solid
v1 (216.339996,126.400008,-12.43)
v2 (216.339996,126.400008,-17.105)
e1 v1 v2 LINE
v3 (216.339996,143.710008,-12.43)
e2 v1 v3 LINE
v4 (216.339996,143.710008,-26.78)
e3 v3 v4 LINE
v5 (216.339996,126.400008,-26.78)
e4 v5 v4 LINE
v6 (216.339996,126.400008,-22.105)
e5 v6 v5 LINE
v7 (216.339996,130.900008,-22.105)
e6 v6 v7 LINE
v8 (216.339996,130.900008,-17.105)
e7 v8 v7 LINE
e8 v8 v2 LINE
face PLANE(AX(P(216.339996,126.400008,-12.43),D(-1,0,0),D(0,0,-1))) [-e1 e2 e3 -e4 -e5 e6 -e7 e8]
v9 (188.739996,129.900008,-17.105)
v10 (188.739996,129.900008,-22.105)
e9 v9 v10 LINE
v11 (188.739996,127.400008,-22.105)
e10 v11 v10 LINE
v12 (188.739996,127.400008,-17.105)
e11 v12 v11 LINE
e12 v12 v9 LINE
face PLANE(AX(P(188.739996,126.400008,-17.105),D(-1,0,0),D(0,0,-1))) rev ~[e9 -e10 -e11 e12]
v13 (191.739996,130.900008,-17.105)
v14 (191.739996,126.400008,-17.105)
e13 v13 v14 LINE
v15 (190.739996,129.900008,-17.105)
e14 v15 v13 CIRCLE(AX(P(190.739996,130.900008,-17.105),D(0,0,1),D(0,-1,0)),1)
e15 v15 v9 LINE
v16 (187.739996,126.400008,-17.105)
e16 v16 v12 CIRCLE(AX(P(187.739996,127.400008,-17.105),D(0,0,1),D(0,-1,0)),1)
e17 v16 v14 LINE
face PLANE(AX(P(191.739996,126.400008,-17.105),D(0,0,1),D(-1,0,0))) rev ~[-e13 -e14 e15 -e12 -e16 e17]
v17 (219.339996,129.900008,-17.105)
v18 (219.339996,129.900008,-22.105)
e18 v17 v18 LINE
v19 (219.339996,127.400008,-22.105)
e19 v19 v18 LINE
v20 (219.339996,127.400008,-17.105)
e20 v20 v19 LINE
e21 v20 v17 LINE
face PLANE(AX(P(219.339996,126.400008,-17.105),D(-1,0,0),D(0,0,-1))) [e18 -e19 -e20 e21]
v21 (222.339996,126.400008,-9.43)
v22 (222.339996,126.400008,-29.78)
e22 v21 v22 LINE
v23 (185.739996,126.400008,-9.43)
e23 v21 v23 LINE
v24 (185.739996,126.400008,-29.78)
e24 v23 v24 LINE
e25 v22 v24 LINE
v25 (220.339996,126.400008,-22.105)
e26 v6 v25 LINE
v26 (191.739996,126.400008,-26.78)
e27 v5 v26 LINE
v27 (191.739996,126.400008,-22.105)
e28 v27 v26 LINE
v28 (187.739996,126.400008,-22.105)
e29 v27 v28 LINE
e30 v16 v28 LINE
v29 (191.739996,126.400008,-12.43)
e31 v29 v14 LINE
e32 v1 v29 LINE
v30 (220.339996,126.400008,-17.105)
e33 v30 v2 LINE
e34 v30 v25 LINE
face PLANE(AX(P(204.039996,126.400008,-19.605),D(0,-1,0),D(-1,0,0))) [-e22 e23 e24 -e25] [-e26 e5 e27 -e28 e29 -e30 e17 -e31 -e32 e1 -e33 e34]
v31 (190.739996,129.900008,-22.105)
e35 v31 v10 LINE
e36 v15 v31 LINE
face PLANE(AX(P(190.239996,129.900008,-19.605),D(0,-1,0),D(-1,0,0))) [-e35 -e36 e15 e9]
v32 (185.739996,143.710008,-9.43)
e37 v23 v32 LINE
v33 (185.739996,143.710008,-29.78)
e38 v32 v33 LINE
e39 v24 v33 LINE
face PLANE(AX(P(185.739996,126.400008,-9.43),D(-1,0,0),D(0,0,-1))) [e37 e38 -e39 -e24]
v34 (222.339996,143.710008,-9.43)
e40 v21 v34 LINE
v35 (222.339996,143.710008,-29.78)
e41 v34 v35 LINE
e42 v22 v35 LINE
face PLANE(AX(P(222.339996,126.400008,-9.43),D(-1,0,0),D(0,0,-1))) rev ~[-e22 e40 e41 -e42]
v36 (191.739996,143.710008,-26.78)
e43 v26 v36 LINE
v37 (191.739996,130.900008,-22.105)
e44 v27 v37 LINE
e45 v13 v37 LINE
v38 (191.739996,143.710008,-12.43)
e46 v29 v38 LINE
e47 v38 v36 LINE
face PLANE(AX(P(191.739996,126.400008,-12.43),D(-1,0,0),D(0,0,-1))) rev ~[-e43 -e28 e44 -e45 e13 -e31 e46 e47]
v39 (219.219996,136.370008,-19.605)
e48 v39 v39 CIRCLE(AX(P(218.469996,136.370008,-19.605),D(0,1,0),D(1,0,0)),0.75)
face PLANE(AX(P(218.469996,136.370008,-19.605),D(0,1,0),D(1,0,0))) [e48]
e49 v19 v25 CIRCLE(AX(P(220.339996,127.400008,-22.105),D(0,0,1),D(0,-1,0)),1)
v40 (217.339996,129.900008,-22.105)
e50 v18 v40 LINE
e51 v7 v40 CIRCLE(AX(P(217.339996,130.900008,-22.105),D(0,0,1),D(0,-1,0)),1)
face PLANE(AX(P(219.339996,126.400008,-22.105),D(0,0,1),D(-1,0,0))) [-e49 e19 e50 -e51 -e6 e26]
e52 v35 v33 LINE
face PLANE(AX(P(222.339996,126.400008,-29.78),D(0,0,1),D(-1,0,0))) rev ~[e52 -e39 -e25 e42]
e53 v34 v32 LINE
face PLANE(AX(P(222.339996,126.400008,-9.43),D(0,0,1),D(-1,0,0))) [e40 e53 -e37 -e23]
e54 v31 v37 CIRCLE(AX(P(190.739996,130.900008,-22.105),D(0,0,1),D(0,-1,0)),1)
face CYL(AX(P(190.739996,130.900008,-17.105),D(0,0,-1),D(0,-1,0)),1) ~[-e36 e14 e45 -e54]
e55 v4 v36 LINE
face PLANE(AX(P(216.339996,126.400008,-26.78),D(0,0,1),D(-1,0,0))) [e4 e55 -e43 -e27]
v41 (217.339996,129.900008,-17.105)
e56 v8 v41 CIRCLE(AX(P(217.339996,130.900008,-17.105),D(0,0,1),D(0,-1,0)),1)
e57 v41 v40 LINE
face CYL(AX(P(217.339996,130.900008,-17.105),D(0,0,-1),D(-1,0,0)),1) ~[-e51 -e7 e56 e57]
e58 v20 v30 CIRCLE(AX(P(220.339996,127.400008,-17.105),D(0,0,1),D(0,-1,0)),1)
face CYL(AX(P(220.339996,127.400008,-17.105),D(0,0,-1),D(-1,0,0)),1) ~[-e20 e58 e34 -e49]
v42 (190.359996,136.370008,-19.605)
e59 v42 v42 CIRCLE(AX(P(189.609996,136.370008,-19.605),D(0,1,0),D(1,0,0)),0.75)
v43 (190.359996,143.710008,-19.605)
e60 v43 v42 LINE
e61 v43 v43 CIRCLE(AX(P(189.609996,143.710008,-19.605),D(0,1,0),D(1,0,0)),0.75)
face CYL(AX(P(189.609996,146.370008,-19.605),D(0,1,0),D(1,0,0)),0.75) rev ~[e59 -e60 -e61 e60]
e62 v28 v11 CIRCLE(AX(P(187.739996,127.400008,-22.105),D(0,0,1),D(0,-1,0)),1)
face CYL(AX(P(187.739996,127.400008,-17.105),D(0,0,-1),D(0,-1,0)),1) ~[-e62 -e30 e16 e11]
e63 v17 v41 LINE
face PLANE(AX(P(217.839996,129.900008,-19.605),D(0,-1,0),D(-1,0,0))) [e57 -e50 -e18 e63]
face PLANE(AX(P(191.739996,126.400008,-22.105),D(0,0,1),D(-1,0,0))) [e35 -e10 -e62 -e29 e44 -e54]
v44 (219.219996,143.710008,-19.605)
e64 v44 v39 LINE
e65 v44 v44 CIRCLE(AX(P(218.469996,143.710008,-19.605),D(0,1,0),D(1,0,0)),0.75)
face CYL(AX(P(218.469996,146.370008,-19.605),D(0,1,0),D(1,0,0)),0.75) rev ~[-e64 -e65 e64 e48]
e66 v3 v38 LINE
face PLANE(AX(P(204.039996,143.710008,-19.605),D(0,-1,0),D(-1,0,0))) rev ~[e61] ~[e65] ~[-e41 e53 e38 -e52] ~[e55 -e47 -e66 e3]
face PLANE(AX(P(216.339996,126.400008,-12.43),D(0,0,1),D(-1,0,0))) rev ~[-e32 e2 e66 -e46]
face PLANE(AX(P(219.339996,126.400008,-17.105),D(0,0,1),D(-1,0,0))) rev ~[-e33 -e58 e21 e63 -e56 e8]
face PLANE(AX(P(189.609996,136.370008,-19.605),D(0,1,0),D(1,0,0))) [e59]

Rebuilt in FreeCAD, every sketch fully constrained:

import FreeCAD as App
import Part
import Sketcher


def edges_at(feature, points):
    """Names of the edges that pass closest to the given points."""
    edges = feature.Shape.Edges
    near = lambda p: min(range(len(edges)), key=lambda i: edges[i].distToShape(Part.Vertex(*p))[0])
    return sorted({f"Edge{near(p) + 1}" for p in points})

doc = App.newDocument("Part")
body = doc.addObject("PartDesign::Body", "Body")

sketch1 = body.newObject("Sketcher::SketchObject", "Sketch")
sketch1.AttachmentSupport = (doc.getObject("XZ_Plane"), [""])
sketch1.MapMode = "FlatFace"
sketch1.addGeometry([
    Part.LineSegment(App.Vector(-7, 16.35, 0), App.Vector(-7, -4, 0)),
    Part.LineSegment(App.Vector(-7, -4, 0), App.Vector(29.6, -4, 0)),
    Part.LineSegment(App.Vector(29.6, -4, 0), App.Vector(29.6, 16.35, 0)),
    Part.LineSegment(App.Vector(29.6, 16.35, 0), App.Vector(-7, 16.35, 0)),
    Part.LineSegment(App.Vector(23.6, -1, 0), App.Vector(-1, -1, 0)),
    Part.LineSegment(App.Vector(-1, -1, 0), App.Vector(-1, 13.35, 0)),
    Part.LineSegment(App.Vector(-1, 13.35, 0), App.Vector(23.6, 13.35, 0)),
    Part.LineSegment(App.Vector(23.6, 13.35, 0), App.Vector(23.6, -1, 0)),
], False)
sketch1.addConstraint([
    Sketcher.Constraint("Coincident", 0, 2, 1, 1),
    Sketcher.Constraint("Coincident", 1, 2, 2, 1),
    Sketcher.Constraint("Coincident", 2, 2, 3, 1),
    Sketcher.Constraint("Coincident", 3, 2, 0, 1),
    Sketcher.Constraint("Coincident", 4, 2, 5, 1),
    Sketcher.Constraint("Coincident", 5, 2, 6, 1),
    Sketcher.Constraint("Coincident", 6, 2, 7, 1),
    Sketcher.Constraint("Coincident", 7, 2, 4, 1),
    Sketcher.Constraint("Vertical", 0),
    Sketcher.Constraint("Horizontal", 1),
    Sketcher.Constraint("Vertical", 2),
    Sketcher.Constraint("Horizontal", 3),
    Sketcher.Constraint("Horizontal", 4),
    Sketcher.Constraint("Vertical", 5),
    Sketcher.Constraint("Horizontal", 6),
    Sketcher.Constraint("Vertical", 7),
    Sketcher.Constraint("DistanceX", 1, 1, 1, 2, 36.6),
    Sketcher.Constraint("DistanceX", 4, 2, 4, 1, 24.6),
    Sketcher.Constraint("DistanceX", 0, 2, -1, 1, 7.0),
    Sketcher.Constraint("DistanceY", 0, 2, -1, 1, 4.0),
    Sketcher.Constraint("DistanceX", 4, 2, -1, 1, 1.0),
    Sketcher.Constraint("DistanceY", 4, 2, -1, 1, 1.0),
    Sketcher.Constraint("DistanceY", 5, 2, 3, 2, 3.0),
    Sketcher.Constraint("DistanceY", 0, 2, 0, 1, 20.35),
])
pad1 = body.newObject("PartDesign::Pad", "Pad")
pad1.Profile = sketch1
pad1.Length = 17.31
pad1.Reversed = True

sketch2 = body.newObject("Sketcher::SketchObject", "Sketch001")
sketch2.AttachmentSupport = (doc.getObject("XZ_Plane"), [""])
sketch2.MapMode = "FlatFace"
sketch2.AttachmentOffset = App.Placement(App.Vector(0, 0, -19.97), App.Rotation())
sketch2.addGeometry([
    Part.Circle(App.Vector(25.73, 6.175, 0), App.Vector(0, 0, 1), 0.75),
    Part.Circle(App.Vector(-3.13, 6.175, 0), App.Vector(0, 0, 1), 0.75),
], False)
sketch2.addConstraint([
    Sketcher.Constraint("Equal", 0, 1),
    Sketcher.Constraint("Horizontal", 0, 3, 1, 3),
    Sketcher.Constraint("Diameter", 0, 1.5),
    Sketcher.Constraint("DistanceX", -1, 1, 0, 3, 25.73),
    Sketcher.Constraint("DistanceX", 1, 3, -1, 1, 3.13),
    Sketcher.Constraint("DistanceY", -1, 1, 0, 3, 6.175),
])
pocket1 = body.newObject("PartDesign::Pocket", "Pocket")
pocket1.Profile = sketch2
pocket1.Length = 10
pocket1.Reversed = True

sketch3 = body.newObject("Sketcher::SketchObject", "Sketch002")
sketch3.AttachmentSupport = (doc.getObject("XZ_Plane"), [""])
sketch3.MapMode = "FlatFace"
sketch3.addGeometry([
    Part.LineSegment(App.Vector(-4, 8.675, 0), App.Vector(-4, 3.675, 0)),
    Part.LineSegment(App.Vector(-4, 3.675, 0), App.Vector(-1, 3.675, 0)),
    Part.LineSegment(App.Vector(-1, 3.675, 0), App.Vector(-1, 8.675, 0)),
    Part.LineSegment(App.Vector(-1, 8.675, 0), App.Vector(-4, 8.675, 0)),
    Part.LineSegment(App.Vector(23.6, 8.675, 0), App.Vector(23.6, 3.675, 0)),
    Part.LineSegment(App.Vector(23.6, 3.675, 0), App.Vector(26.6, 3.675, 0)),
    Part.LineSegment(App.Vector(26.6, 3.675, 0), App.Vector(26.6, 8.675, 0)),
    Part.LineSegment(App.Vector(26.6, 8.675, 0), App.Vector(23.6, 8.675, 0)),
], False)
sketch3.addConstraint([
    Sketcher.Constraint("Coincident", 0, 2, 1, 1),
    Sketcher.Constraint("Coincident", 1, 2, 2, 1),
    Sketcher.Constraint("Coincident", 2, 2, 3, 1),
    Sketcher.Constraint("Coincident", 3, 2, 0, 1),
    Sketcher.Constraint("Coincident", 4, 2, 5, 1),
    Sketcher.Constraint("Coincident", 5, 2, 6, 1),
    Sketcher.Constraint("Coincident", 6, 2, 7, 1),
    Sketcher.Constraint("Coincident", 7, 2, 4, 1),
    Sketcher.Constraint("Vertical", 0),
    Sketcher.Constraint("Horizontal", 1),
    Sketcher.Constraint("Vertical", 2),
    Sketcher.Constraint("Horizontal", 3),
    Sketcher.Constraint("Vertical", 4),
    Sketcher.Constraint("Horizontal", 5),
    Sketcher.Constraint("Vertical", 6),
    Sketcher.Constraint("Horizontal", 7),
    Sketcher.Constraint("Horizontal", 1, 2, 4, 2),
    Sketcher.Constraint("Horizontal", 3, 2, 6, 2),
    Sketcher.Constraint("Equal", 3, 5),
    Sketcher.Constraint("DistanceX", 1, 1, 1, 2, 3.0),
    Sketcher.Constraint("DistanceY", 0, 2, 0, 1, 5.0),
    Sketcher.Constraint("DistanceX", 0, 2, -1, 1, 4.0),
    Sketcher.Constraint("DistanceX", -1, 1, 4, 2, 23.6),
    Sketcher.Constraint("DistanceY", -1, 1, 0, 2, 3.675),
])
pocket2 = body.newObject("PartDesign::Pocket", "Pocket001")
pocket2.Profile = sketch3
pocket2.Length = 3.5
doc.recompute()

fillet = body.newObject("PartDesign::Fillet", "Fillet")
fillet.Base = (pocket2, edges_at(pocket2, [(26.6, 0, 6.175)]))
fillet.Radius = 1
doc.recompute()

fillet2 = body.newObject("PartDesign::Fillet", "Fillet001")
fillet2.Base = (fillet, edges_at(fillet, [(23.6, 3.5, 6.175)]))
fillet2.Radius = 1
doc.recompute()

fillet3 = body.newObject("PartDesign::Fillet", "Fillet002")
fillet3.Base = (fillet2, edges_at(fillet2, [(-1, 3.5, 6.175)]))
fillet3.Radius = 1
doc.recompute()

fillet4 = body.newObject("PartDesign::Fillet", "Fillet003")
fillet4.Base = (fillet3, edges_at(fillet3, [(-4, 0, 6.175)]))
fillet4.Radius = 1
body2 = doc.addObject("PartDesign::Body", "Body001")
doc.recompute()

body.Placement = App.Placement(App.Vector(215.339996, 126.400008, -13.43), App.Rotation(App.Vector(0, 1, 0), 180))
boolean = body2.newObject("PartDesign::Boolean", "Boolean")
boolean.Type = "Fuse"
boolean.addObjects([body])

doc.recompute()
